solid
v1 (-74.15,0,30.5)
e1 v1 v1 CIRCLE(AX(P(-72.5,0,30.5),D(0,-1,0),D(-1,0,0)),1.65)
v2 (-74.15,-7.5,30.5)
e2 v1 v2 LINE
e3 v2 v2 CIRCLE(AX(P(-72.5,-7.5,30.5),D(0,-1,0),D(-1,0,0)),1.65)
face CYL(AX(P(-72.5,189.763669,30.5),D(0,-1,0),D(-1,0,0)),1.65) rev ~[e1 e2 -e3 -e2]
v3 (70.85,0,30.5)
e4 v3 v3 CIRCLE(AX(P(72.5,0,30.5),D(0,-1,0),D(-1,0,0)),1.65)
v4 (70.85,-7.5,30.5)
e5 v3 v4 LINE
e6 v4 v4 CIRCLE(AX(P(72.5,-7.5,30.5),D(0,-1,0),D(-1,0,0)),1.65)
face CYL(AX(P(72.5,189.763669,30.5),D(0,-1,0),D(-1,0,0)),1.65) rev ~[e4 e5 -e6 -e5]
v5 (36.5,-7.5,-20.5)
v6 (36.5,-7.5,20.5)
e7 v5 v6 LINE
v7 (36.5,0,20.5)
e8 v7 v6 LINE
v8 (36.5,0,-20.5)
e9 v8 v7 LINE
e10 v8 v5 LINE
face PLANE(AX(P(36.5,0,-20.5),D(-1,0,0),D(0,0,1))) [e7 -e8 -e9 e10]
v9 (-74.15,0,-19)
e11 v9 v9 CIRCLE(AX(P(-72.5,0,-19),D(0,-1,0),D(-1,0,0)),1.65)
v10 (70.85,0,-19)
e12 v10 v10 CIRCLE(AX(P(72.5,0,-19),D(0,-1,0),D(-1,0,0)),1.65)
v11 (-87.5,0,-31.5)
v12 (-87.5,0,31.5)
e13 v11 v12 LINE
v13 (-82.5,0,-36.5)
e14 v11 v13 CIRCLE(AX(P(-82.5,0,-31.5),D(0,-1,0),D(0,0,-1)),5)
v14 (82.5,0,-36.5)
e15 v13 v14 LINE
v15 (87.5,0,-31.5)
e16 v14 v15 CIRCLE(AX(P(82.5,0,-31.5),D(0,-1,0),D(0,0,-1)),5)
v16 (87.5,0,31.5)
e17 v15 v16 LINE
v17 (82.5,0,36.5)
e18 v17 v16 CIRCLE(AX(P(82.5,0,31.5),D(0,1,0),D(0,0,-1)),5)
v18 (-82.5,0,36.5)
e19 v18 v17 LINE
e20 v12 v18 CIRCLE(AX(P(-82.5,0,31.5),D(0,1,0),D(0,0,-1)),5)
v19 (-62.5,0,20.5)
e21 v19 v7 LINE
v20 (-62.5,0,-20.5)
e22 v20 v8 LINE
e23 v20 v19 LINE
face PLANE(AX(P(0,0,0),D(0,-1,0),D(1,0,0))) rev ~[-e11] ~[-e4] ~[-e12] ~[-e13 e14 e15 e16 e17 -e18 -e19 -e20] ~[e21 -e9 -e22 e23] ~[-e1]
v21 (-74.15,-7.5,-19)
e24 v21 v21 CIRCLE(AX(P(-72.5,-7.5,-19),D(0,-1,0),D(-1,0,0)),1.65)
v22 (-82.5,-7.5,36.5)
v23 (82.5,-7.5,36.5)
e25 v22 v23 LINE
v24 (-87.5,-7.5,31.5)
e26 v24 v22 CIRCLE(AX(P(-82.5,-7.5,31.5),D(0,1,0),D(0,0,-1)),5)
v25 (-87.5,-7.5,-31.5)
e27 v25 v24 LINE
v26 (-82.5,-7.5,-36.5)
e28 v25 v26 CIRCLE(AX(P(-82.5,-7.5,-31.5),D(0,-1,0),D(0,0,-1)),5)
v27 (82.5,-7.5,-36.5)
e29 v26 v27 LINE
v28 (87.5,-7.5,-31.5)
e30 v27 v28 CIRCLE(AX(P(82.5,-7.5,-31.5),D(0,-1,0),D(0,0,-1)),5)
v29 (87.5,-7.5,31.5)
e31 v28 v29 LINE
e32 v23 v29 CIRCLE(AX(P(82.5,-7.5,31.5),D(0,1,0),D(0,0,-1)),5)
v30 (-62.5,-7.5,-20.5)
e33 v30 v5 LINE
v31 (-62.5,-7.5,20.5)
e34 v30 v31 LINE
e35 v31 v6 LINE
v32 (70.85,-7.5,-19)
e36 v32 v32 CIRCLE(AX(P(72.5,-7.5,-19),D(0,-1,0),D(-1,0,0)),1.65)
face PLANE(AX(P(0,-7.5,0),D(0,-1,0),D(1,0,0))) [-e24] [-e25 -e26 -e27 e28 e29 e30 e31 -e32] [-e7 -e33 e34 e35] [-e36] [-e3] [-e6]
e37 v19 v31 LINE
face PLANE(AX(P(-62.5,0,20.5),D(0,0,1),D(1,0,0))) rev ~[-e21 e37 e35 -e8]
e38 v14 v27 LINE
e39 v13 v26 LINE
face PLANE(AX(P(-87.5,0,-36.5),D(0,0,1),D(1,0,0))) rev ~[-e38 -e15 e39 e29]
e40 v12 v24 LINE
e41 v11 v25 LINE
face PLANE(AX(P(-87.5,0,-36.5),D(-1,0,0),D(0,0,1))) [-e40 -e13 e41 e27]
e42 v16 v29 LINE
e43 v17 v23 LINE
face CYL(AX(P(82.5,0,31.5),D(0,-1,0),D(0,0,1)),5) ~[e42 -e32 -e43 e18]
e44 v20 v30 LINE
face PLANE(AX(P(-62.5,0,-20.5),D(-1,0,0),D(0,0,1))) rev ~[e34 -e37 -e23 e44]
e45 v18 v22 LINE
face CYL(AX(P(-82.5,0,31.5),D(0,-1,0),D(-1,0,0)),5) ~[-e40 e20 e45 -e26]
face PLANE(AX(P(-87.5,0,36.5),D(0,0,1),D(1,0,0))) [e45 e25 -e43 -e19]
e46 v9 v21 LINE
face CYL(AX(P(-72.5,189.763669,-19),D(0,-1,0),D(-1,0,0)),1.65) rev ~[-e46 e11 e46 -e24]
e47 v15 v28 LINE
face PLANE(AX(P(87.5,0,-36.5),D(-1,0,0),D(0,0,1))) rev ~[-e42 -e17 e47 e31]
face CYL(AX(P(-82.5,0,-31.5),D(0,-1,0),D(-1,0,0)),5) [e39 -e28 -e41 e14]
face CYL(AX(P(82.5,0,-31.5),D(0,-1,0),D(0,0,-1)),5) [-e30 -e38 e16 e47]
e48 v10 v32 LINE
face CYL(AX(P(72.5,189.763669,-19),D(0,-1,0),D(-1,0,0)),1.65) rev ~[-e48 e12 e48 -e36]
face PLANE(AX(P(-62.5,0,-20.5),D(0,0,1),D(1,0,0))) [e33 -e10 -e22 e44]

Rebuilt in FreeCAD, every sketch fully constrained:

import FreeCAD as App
import Part
import Sketcher
from FreeCAD import Vector


def edges_at(feature, points):
    """Names of the edges that pass closest to the given points."""
    edges = feature.Shape.Edges
    near = lambda p: min(range(len(edges)), key=lambda i: edges[i].distToShape(Part.Vertex(*p))[0])
    return sorted({f"Edge{near(p) + 1}" for p in points})

doc = App.newDocument("Part")
body = doc.addObject("PartDesign::Body", "Body")

# Sketch on XZ plane
sketch1 = doc.addObject("Sketcher::SketchObject", "Sketch")
body.addObject(sketch1)
sketch1.AttachmentSupport = (doc.XZ_Plane, [""])
sketch1.MapMode = "FlatFace"
sketch1.addGeometry(Part.LineSegment(Vector(-88, 36, 0), Vector(-88, -36, 0)), False)
sketch1.addGeometry(Part.LineSegment(Vector(-88, -36, 0), Vector(88, -36, 0)), False)
sketch1.addGeometry(Part.LineSegment(Vector(88, -36, 0), Vector(88, 36, 0)), False)
sketch1.addGeometry(Part.LineSegment(Vector(88, 36, 0), Vector(-88, 36, 0)), False)
sketch1.addGeometry(Part.LineSegment(Vector(36, -20, 0), Vector(-62, -20, 0)), False)
sketch1.addGeometry(Part.LineSegment(Vector(-62, -20, 0), Vector(-62, 20, 0)), False)
sketch1.addGeometry(Part.LineSegment(Vector(-62, 20, 0), Vector(36, 20, 0)), False)
sketch1.addGeometry(Part.LineSegment(Vector(36, 20, 0), Vector(36, -20, 0)), False)
sketch1.addConstraint(Sketcher.Constraint("Coincident", 0, 2, 1, 1))
sketch1.addConstraint(Sketcher.Constraint("Coincident", 1, 2, 2, 1))
sketch1.addConstraint(Sketcher.Constraint("Coincident", 2, 2, 3, 1))
sketch1.addConstraint(Sketcher.Constraint("Coincident", 3, 2, 0, 1))
sketch1.addConstraint(Sketcher.Constraint("Coincident", 4, 2, 5, 1))
sketch1.addConstraint(Sketcher.Constraint("Coincident", 5, 2, 6, 1))
sketch1.addConstraint(Sketcher.Constraint("Coincident", 6, 2, 7, 1))
sketch1.addConstraint(Sketcher.Constraint("Coincident", 7, 2, 4, 1))
sketch1.addConstraint(Sketcher.Constraint("Vertical", 0))
sketch1.addConstraint(Sketcher.Constraint("Horizontal", 1))
sketch1.addConstraint(Sketcher.Constraint("Vertical", 2))
sketch1.addConstraint(Sketcher.Constraint("Horizontal", 3))
sketch1.addConstraint(Sketcher.Constraint("Horizontal", 4))
sketch1.addConstraint(Sketcher.Constraint("Vertical", 5))
sketch1.addConstraint(Sketcher.Constraint("Horizontal", 6))
sketch1.addConstraint(Sketcher.Constraint("Vertical", 7))
sketch1.addConstraint(Sketcher.Constraint("Symmetric", 0, 2, 2, 2, -1, 1))
sketch1.addConstraint(Sketcher.Constraint("DistanceX", 1, 1, 1, 2, 175.0))
sketch1.addConstraint(Sketcher.Constraint("DistanceX", 4, 2, 4, 1, 99.0))
sketch1.addConstraint(Sketcher.Constraint("DistanceY", 0, 2, 0, 1, 73.0))
sketch1.addConstraint(Sketcher.Constraint("DistanceY", 5, 1, 5, 2, 41.0))
sketch1.addConstraint(Sketcher.Constraint("DistanceX", 0, 2, 4, 2, 25.0))
sketch1.addConstraint(Sketcher.Constraint("DistanceY", 0, 2, 4, 2, 16.0))
pad1 = doc.addObject("PartDesign::Pad", "Pad")
body.addObject(pad1)
pad1.Profile = sketch1
pad1.Length = 7.5
doc.recompute()

fillet = doc.addObject("PartDesign::Fillet", "Fillet")
body.addObject(fillet)
fillet.Base = (pad1, edges_at(pad1, [
    (-87.5, -3.75, 36.5),
    (87.5, -3.75, 36.5),
    (87.5, -3.75, -36.5),
    (-87.5, -3.75, -36.5),
]))
fillet.Radius = 5

# Sketch on XZ plane
sketch2 = doc.addObject("Sketcher::SketchObject", "Sketch001")
body.addObject(sketch2)
sketch2.AttachmentSupport = (doc.XZ_Plane, [""])
sketch2.MapMode = "FlatFace"
sketch2.addGeometry(Part.Circle(Vector(-72.5, 30.5, 0), Vector(0, 0, 1), 1.6), False)
sketch2.addGeometry(Part.Circle(Vector(-72.5, -19, 0), Vector(0, 0, 1), 1.6), False)
sketch2.addGeometry(Part.Circle(Vector(72.5, -19, 0), Vector(0, 0, 1), 1.6), False)
sketch2.addGeometry(Part.Circle(Vector(72.5, 30.5, 0), Vector(0, 0, 1), 1.6), False)
sketch2.addConstraint(Sketcher.Constraint("Equal", 0, 1))
sketch2.addConstraint(Sketcher.Constraint("Equal", 1, 2))
sketch2.addConstraint(Sketcher.Constraint("Equal", 2, 3))
sketch2.addConstraint(Sketcher.Constraint("Symmetric", 1, 3, 2, 3, -2))
sketch2.addConstraint(Sketcher.Constraint("Symmetric", 0, 3, 3, 3, -2))
sketch2.addConstraint(Sketcher.Constraint("Vertical", 0, 3, 1, 3))
sketch2.addConstraint(Sketcher.Constraint("Diameter", 0, 3.3))
sketch2.addConstraint(Sketcher.Constraint("DistanceY", 1, 3, -1, 1, 19.0))
sketch2.addConstraint(Sketcher.Constraint("DistanceX", 1, 3, 2, 3, 145.0))
sketch2.addConstraint(Sketcher.Constraint("DistanceY", -1, 1, 0, 3, 30.5))
doc.recompute()
hole = doc.addObject("PartDesign::Hole", "Hole")
body.addObject(hole)
hole.Profile = sketch2
hole.ThreadType = "None"
hole.Diameter = 3.3
hole.DepthType = "ThroughAll"
hole.Reversed = True

doc.recompute()
